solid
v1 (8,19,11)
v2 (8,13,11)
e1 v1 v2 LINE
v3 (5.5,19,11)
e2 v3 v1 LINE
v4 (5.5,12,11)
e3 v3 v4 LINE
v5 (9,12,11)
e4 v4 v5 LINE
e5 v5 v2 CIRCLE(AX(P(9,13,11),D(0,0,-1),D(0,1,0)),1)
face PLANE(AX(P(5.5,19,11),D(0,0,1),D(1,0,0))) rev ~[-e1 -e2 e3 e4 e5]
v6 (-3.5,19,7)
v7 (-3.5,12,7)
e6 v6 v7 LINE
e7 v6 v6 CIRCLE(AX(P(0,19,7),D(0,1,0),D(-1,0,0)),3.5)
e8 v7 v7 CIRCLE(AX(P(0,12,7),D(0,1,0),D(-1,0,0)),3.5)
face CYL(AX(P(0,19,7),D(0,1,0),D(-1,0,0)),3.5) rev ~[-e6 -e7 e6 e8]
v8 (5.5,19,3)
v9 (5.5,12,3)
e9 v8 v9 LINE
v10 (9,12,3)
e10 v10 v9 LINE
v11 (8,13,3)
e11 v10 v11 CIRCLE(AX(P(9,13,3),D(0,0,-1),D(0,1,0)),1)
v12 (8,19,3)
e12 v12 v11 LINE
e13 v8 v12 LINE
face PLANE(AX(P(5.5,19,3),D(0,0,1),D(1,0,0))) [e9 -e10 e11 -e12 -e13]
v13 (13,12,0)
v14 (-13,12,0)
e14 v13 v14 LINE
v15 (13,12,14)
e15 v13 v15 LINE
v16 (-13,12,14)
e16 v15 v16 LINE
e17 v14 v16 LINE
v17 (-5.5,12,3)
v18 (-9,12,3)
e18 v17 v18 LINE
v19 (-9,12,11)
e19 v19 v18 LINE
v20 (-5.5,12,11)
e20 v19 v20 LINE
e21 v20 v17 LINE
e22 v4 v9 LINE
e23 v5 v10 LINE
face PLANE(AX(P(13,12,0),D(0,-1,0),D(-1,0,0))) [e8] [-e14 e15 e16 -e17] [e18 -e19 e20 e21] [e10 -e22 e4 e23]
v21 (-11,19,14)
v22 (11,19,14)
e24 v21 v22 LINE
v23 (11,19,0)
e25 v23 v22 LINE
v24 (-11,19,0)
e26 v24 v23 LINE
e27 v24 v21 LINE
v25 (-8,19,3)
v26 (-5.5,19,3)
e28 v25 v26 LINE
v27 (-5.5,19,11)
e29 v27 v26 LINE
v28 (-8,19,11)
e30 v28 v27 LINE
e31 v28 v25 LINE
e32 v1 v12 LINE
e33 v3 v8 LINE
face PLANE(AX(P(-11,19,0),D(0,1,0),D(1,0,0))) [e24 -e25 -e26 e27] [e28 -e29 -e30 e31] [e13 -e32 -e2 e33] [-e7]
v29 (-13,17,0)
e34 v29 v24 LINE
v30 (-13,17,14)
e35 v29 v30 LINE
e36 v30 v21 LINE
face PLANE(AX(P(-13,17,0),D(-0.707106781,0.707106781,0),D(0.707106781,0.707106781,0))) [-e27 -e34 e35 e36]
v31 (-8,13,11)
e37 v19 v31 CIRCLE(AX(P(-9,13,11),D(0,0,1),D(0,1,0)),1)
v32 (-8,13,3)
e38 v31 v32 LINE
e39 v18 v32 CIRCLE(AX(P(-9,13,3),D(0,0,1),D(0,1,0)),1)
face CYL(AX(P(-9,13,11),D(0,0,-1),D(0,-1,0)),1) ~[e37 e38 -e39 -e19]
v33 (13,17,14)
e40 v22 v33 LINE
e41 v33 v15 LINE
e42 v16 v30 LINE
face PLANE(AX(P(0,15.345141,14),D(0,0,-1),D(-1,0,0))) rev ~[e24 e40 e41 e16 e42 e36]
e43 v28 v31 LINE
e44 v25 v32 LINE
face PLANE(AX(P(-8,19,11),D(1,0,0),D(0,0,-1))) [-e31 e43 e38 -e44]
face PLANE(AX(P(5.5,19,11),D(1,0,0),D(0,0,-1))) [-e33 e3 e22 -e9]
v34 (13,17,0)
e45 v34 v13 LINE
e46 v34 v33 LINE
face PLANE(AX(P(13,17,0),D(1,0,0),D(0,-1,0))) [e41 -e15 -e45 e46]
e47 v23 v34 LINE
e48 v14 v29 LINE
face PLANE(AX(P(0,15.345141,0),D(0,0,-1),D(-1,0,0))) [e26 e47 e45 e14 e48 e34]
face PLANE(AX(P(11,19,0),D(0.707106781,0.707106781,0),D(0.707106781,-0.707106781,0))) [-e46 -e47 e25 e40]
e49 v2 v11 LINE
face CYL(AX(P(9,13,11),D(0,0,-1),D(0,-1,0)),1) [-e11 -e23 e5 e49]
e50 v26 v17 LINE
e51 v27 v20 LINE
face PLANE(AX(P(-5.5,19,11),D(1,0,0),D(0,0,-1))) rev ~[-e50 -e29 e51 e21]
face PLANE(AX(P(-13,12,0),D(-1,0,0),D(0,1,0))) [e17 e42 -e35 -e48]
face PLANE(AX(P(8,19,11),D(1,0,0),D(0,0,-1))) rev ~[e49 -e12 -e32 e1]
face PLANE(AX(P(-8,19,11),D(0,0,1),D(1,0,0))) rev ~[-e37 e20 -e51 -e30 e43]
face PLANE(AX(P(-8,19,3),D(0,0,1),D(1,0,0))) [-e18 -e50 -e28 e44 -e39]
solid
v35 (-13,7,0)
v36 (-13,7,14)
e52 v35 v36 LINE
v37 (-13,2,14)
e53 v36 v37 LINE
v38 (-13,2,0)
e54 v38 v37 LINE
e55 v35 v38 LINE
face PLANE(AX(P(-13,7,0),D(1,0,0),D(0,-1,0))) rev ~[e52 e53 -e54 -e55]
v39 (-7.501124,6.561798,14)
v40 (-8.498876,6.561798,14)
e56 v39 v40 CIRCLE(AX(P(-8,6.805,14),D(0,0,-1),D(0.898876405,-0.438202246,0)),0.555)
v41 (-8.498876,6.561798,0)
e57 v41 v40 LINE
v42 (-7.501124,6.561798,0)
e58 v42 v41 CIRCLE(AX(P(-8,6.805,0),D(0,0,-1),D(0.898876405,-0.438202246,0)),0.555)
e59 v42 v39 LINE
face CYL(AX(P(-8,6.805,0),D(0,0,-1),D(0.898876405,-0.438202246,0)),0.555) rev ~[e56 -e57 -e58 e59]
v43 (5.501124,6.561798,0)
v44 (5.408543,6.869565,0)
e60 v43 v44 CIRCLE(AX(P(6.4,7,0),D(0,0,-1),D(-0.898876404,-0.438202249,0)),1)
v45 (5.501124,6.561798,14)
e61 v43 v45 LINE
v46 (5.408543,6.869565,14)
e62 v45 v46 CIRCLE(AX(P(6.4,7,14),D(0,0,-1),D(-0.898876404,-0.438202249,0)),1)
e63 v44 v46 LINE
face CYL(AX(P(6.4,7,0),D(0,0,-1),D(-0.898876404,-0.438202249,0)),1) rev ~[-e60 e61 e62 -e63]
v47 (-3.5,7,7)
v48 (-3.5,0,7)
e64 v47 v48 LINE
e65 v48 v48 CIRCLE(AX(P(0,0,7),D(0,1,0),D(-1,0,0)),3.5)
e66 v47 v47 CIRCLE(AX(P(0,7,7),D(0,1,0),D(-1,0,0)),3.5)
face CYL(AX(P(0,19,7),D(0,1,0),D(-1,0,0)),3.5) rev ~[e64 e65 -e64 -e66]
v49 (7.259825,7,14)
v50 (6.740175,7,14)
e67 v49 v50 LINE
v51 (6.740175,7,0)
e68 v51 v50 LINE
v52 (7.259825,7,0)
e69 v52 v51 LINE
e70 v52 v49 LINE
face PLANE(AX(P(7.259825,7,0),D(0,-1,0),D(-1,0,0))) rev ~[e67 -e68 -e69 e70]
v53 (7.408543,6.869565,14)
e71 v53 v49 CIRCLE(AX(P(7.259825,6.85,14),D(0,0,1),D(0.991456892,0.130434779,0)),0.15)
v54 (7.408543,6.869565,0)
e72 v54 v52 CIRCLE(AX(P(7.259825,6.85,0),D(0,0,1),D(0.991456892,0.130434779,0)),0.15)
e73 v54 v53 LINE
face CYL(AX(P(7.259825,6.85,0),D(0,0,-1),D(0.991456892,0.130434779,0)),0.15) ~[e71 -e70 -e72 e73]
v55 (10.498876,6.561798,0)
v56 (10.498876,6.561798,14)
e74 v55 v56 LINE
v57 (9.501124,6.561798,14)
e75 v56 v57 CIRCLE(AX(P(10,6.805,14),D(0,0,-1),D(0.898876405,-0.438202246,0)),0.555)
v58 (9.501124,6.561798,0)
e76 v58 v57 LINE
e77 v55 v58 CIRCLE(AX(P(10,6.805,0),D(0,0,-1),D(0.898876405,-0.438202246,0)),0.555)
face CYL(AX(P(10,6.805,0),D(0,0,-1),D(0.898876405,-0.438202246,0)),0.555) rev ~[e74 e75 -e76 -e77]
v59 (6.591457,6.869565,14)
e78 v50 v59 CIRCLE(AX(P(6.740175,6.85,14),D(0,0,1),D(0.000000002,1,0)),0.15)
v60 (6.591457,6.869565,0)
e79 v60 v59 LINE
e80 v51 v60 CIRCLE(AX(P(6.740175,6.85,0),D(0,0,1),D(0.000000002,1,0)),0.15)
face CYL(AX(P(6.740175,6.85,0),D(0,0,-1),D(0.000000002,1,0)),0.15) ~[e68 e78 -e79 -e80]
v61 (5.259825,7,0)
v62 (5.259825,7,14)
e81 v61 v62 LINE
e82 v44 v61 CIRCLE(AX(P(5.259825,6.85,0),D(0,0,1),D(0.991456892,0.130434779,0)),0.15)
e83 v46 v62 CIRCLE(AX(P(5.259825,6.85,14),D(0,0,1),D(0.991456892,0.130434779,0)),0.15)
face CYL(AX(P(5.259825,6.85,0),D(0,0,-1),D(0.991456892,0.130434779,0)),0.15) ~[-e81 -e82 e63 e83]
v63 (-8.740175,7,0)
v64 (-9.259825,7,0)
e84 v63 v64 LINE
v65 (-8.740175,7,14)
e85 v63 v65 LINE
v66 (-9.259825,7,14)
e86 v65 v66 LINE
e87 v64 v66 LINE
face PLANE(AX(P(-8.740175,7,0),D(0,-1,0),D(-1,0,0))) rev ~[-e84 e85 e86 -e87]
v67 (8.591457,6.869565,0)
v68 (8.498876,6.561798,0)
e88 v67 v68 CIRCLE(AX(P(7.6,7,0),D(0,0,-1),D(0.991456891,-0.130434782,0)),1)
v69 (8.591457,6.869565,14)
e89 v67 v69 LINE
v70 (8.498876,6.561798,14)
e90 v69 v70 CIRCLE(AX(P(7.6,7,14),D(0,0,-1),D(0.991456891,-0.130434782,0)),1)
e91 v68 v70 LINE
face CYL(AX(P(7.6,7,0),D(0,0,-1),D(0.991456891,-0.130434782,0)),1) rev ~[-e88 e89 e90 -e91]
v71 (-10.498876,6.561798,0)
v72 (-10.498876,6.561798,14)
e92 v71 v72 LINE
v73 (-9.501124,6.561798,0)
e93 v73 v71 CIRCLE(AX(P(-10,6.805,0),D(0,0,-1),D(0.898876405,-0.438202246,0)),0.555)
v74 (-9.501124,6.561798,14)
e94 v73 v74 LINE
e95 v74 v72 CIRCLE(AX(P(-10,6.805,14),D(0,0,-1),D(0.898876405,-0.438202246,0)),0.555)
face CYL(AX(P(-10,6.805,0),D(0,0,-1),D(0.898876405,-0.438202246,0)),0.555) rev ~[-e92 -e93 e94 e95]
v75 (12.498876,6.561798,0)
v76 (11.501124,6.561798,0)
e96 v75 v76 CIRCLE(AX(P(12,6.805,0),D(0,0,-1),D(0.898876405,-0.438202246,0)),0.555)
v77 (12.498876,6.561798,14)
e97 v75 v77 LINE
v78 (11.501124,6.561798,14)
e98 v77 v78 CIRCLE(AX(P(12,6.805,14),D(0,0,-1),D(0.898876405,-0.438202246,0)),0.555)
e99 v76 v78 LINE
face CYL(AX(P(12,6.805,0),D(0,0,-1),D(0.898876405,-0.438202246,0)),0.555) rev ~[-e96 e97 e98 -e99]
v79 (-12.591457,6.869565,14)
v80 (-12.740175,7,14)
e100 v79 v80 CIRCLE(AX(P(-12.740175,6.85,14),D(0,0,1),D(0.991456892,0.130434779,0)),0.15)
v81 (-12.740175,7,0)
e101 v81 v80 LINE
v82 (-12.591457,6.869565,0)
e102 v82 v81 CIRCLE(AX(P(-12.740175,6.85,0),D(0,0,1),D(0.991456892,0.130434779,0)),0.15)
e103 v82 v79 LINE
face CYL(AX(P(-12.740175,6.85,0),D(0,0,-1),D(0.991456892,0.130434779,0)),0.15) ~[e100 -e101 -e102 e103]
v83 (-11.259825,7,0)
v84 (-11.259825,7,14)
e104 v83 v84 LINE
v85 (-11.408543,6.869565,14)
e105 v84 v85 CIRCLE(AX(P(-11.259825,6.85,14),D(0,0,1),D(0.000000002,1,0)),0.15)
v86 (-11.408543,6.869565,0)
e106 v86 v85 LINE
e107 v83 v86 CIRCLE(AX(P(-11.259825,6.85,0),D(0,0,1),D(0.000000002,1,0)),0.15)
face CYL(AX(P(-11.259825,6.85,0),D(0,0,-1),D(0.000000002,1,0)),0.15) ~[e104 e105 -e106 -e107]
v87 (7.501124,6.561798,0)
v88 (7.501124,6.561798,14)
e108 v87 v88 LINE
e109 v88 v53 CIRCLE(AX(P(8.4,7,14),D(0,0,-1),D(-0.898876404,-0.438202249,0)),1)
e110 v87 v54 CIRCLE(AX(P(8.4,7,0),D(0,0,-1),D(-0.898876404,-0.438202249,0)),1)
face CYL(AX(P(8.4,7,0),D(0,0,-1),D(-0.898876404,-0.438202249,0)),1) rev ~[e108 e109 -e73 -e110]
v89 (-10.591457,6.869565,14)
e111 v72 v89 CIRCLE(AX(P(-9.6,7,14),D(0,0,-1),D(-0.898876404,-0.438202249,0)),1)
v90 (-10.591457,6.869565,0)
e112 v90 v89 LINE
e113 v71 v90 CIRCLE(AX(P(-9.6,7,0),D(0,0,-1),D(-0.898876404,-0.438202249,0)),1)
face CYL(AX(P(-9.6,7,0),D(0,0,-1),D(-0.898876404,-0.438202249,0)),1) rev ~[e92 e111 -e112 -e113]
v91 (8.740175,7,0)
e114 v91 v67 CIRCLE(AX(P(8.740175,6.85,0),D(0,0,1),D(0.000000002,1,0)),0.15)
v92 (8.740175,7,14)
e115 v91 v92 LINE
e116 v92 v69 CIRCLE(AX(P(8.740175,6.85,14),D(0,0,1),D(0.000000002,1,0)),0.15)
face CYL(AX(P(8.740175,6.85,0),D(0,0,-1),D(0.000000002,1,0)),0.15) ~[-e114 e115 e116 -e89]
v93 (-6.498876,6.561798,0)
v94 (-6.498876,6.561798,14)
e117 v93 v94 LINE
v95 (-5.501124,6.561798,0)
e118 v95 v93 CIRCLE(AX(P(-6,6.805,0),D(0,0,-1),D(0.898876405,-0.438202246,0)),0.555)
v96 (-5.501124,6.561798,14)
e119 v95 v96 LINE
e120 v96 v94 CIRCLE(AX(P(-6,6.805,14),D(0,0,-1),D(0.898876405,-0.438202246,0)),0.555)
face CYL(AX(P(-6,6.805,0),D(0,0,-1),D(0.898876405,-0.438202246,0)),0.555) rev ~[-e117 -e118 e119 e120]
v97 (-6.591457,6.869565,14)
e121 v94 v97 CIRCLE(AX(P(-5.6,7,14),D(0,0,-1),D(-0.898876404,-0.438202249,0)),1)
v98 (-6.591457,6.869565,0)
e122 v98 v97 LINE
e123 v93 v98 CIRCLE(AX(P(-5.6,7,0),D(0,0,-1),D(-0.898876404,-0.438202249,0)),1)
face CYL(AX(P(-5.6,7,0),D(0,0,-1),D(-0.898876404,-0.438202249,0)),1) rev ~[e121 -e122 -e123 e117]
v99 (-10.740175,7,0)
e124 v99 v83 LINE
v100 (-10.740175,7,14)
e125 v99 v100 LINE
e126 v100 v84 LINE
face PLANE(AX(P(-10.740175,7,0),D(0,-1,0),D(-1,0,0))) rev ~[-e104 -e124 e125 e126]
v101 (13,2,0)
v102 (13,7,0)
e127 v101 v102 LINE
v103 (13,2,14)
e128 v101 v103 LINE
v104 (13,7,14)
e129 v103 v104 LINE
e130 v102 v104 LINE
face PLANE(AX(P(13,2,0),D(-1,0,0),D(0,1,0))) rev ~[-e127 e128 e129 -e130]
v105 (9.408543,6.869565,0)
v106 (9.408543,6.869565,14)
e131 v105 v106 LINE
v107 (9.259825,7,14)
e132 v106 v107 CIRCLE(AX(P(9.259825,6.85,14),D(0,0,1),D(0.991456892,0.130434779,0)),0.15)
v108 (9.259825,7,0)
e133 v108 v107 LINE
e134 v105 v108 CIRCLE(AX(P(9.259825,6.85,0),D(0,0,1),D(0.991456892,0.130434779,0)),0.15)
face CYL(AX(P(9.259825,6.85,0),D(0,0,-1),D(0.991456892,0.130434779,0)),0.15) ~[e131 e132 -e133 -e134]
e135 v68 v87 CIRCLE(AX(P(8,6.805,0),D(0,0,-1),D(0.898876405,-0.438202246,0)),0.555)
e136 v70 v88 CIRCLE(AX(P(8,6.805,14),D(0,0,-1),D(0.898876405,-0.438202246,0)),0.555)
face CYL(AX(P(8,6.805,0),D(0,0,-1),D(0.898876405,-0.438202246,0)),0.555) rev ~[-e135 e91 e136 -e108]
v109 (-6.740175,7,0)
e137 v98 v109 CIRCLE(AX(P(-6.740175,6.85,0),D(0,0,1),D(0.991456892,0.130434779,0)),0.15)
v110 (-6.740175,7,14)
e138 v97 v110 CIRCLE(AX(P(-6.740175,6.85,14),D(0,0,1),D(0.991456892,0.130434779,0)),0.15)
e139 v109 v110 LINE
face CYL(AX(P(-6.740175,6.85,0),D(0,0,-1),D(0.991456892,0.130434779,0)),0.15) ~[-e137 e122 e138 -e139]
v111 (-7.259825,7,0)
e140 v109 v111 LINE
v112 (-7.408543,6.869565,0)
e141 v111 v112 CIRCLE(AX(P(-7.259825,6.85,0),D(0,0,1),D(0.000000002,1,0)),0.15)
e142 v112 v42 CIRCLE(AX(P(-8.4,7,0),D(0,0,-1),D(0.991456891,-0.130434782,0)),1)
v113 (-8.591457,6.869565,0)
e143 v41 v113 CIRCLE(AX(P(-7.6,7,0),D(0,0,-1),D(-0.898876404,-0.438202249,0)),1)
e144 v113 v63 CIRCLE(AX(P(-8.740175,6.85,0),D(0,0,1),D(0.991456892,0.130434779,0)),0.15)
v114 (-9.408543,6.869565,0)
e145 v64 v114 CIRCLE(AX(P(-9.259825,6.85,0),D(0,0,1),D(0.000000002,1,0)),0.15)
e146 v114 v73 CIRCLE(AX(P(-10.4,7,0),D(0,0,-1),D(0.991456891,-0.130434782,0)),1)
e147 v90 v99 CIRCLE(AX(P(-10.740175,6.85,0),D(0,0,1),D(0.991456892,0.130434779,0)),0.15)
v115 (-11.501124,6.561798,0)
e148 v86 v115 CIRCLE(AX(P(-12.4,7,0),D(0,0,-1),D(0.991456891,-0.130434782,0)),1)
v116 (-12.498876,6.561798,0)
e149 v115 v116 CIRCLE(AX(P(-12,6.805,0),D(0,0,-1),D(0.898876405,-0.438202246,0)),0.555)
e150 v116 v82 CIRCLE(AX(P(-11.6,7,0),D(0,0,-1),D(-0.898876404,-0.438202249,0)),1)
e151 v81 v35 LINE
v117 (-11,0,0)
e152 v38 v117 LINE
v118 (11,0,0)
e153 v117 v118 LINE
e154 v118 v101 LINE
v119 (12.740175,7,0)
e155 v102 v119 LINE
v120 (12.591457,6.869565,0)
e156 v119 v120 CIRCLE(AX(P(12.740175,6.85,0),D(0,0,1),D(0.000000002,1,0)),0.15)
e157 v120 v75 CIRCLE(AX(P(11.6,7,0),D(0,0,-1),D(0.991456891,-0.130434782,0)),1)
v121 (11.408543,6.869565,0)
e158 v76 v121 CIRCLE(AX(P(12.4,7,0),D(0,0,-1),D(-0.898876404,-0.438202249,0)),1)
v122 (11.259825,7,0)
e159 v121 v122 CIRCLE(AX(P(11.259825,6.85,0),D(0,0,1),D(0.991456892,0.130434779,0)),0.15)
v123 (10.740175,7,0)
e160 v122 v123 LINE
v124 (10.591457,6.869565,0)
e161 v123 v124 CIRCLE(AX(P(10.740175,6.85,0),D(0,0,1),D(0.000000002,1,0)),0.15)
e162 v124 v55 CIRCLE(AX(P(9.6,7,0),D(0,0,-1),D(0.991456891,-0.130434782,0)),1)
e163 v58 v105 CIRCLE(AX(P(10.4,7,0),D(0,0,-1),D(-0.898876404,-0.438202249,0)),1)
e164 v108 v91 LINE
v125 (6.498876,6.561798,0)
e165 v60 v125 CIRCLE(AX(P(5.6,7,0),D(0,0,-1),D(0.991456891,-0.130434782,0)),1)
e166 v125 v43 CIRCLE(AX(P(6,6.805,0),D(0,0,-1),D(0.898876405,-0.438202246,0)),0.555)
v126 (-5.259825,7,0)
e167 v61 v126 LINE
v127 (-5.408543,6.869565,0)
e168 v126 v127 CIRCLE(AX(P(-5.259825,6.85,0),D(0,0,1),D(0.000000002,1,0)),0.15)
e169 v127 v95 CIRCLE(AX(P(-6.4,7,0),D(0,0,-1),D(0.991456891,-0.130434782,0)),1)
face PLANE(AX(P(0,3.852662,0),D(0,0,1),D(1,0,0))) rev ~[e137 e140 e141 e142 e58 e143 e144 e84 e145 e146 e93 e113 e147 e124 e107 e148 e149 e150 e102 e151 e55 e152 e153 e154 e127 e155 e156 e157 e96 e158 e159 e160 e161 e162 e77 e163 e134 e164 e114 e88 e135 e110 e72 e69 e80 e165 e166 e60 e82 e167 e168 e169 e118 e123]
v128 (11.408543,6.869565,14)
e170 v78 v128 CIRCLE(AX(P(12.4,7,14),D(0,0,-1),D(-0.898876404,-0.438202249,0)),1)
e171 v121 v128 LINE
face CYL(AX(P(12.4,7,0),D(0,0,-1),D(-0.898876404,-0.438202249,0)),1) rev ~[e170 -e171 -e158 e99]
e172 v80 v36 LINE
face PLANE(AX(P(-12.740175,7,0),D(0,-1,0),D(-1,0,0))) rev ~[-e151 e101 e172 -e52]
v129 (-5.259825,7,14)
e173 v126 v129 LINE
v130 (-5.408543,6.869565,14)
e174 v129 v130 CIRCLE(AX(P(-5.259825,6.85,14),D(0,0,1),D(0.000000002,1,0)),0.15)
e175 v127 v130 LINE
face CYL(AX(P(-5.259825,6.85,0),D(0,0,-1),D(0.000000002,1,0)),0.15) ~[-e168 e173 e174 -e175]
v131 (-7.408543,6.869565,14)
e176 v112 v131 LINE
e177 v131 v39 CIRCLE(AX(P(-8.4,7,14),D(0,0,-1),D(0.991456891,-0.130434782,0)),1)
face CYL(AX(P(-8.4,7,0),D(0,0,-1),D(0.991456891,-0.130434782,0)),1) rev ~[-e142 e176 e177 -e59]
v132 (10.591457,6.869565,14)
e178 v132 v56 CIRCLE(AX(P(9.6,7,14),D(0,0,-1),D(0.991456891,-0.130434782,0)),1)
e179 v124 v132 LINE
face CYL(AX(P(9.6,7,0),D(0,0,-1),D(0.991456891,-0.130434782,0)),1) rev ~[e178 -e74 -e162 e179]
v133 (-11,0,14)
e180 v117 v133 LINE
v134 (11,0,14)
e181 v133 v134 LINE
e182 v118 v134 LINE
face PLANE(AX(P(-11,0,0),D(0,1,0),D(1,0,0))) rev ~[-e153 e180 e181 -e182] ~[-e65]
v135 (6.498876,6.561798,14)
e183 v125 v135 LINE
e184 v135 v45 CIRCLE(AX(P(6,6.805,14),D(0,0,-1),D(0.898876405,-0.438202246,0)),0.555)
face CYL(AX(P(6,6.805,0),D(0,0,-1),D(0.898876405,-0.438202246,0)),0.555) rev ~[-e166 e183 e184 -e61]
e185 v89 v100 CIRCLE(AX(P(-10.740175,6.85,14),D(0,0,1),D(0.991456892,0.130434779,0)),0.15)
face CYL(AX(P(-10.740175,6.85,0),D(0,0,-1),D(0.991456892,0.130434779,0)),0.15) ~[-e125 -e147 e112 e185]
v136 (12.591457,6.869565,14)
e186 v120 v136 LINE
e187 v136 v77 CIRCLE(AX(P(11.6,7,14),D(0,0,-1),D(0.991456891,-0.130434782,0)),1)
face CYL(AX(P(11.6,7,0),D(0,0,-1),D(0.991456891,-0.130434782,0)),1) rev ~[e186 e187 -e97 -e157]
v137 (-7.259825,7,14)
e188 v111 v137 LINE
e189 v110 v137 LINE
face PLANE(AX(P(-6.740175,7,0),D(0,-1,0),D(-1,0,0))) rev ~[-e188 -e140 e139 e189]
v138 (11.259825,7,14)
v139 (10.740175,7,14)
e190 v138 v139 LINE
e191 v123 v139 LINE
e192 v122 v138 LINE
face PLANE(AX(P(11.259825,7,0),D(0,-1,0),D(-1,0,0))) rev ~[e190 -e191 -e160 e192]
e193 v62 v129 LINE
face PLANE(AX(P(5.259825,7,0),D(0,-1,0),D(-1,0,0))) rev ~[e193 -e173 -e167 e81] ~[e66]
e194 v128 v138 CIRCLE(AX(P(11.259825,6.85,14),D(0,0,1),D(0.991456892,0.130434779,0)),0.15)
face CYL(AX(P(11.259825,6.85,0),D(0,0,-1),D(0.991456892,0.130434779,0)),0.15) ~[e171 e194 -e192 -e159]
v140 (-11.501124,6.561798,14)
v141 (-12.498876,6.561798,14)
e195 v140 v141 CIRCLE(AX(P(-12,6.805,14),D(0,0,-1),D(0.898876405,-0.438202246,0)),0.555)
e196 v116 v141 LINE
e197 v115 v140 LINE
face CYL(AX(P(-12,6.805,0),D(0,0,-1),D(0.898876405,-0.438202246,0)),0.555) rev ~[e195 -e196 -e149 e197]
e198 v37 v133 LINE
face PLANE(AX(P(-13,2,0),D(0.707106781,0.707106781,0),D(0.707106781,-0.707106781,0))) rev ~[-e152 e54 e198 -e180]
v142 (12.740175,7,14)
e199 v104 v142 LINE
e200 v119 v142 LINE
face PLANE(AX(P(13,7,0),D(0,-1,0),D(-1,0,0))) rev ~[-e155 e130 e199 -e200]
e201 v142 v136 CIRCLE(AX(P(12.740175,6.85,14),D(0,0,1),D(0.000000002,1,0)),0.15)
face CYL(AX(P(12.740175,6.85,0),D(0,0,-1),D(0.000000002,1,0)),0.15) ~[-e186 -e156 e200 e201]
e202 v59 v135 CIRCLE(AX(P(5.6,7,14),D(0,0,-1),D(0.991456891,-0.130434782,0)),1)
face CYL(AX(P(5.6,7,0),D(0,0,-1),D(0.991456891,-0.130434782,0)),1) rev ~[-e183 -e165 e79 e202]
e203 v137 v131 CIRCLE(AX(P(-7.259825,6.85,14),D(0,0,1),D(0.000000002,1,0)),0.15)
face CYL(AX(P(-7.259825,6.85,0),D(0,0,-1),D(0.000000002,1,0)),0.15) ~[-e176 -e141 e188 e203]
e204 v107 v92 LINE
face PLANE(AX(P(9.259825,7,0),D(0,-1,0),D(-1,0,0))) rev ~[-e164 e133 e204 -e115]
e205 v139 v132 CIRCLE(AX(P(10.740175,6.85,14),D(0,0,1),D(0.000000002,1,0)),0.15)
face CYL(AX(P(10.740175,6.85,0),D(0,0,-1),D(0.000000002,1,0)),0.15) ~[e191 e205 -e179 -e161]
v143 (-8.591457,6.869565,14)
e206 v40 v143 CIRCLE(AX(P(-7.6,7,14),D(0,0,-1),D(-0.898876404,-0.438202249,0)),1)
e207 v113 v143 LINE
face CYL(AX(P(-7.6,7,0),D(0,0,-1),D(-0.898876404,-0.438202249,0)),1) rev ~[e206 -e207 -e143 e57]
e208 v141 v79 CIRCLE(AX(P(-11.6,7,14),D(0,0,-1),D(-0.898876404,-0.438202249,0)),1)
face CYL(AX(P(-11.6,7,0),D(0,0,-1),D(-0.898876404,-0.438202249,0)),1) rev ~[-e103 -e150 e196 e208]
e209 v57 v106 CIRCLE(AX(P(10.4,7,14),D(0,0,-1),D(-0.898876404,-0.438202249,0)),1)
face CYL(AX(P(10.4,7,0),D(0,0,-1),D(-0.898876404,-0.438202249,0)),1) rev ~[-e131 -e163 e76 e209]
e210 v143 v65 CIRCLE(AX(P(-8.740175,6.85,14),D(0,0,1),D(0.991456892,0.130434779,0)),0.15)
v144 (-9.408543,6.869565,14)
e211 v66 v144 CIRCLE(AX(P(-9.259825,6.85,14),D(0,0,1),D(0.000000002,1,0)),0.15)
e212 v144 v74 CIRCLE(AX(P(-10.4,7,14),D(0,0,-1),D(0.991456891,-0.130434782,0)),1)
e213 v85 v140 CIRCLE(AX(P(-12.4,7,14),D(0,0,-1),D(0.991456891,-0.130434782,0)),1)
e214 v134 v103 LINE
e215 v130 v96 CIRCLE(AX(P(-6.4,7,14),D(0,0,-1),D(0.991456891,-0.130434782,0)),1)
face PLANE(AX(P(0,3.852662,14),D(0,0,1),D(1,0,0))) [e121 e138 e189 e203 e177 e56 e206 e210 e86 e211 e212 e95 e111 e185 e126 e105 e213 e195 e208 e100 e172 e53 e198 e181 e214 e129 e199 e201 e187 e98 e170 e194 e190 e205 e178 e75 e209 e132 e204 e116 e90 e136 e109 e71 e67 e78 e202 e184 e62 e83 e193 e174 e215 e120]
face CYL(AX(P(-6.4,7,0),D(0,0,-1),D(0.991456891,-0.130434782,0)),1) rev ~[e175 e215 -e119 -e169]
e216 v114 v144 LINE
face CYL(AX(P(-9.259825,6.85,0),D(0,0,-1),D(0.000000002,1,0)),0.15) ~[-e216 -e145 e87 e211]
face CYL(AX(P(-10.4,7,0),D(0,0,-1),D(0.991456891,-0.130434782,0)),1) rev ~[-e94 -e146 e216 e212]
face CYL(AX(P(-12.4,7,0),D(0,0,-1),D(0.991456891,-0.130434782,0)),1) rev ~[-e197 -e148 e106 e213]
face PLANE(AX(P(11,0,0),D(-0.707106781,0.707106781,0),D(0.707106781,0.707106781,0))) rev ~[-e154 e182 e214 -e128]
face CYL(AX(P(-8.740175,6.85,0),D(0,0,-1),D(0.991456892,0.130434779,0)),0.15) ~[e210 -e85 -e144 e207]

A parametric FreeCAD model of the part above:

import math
import FreeCAD as App
import Part
import Sketcher
Q = App.Units.Quantity


def edges_at(feature, points):
    """Names of the edges that pass closest to the given points."""
    edges = feature.Shape.Edges
    near = lambda p: min(range(len(edges)), key=lambda i: edges[i].distToShape(Part.Vertex(*p))[0])
    return sorted({f"Edge{near(p) + 1}" for p in points})

doc = App.newDocument("Part")
body = doc.addObject("PartDesign::Body", "Body")

sketch1 = doc.addObject("Sketcher::SketchObject", "Sketch")
body.addObject(sketch1)
sketch1.AttachmentSupport = (doc.XY_Plane, [""])
sketch1.MapMode = "FlatFace"
sketch1.addGeometry(Part.LineSegment(App.Vector(7.259825, 7, 0), App.Vector(6.740175, 7, 0)), False)
sketch1.addGeometry(Part.ArcOfCircle(Part.Circle(App.Vector(6.740175, 6.85, 0), App.Vector(0, 0, 1), 0.15), math.radians(90), math.radians(172.505283)), False)
sketch1.addGeometry(Part.ArcOfCircle(Part.Circle(App.Vector(5.6, 7, 0), App.Vector(0, 0, 1), 1), math.radians(-25.989234), math.radians(-7.494717)), False)
sketch1.addGeometry(Part.ArcOfCircle(Part.Circle(App.Vector(6, 6.805, 0), App.Vector(0, 0, 1), 0.555), math.radians(-154.010767), math.radians(-25.989233)), False)
sketch1.addGeometry(Part.ArcOfCircle(Part.Circle(App.Vector(6.4, 7, 0), App.Vector(0, 0, 1), 1), math.radians(-172.505283), math.radians(-154.010766)), False)
sketch1.addGeometry(Part.ArcOfCircle(Part.Circle(App.Vector(5.259825, 6.85, 0), App.Vector(0, 0, 1), 0.15), math.radians(7.494717), math.radians(90)), False)
sketch1.addGeometry(Part.LineSegment(App.Vector(5.259825, 7, 0), App.Vector(-5.259825, 7, 0)), False)
sketch1.addGeometry(Part.ArcOfCircle(Part.Circle(App.Vector(-5.259825, 6.85, 0), App.Vector(0, 0, 1), 0.15), math.radians(90), math.radians(172.505283)), False)
sketch1.addGeometry(Part.ArcOfCircle(Part.Circle(App.Vector(-6.4, 7, 0), App.Vector(0, 0, 1), 1), math.radians(-25.989234), math.radians(-7.494717)), False)
sketch1.addGeometry(Part.ArcOfCircle(Part.Circle(App.Vector(-6, 6.805, 0), App.Vector(0, 0, 1), 0.555), math.radians(-154.010767), math.radians(-25.989233)), False)
sketch1.addGeometry(Part.ArcOfCircle(Part.Circle(App.Vector(-5.6, 7, 0), App.Vector(0, 0, 1), 1), math.radians(-172.505283), math.radians(-154.010766)), False)
sketch1.addGeometry(Part.ArcOfCircle(Part.Circle(App.Vector(-6.740175, 6.85, 0), App.Vector(0, 0, 1), 0.15), math.radians(7.494717), math.radians(90)), False)
sketch1.addGeometry(Part.LineSegment(App.Vector(-6.740175, 7, 0), App.Vector(-7.259825, 7, 0)), False)
sketch1.addGeometry(Part.ArcOfCircle(Part.Circle(App.Vector(-7.259825, 6.85, 0), App.Vector(0, 0, 1), 0.15), math.radians(90), math.radians(172.505283)), False)
sketch1.addGeometry(Part.ArcOfCircle(Part.Circle(App.Vector(-8.4, 7, 0), App.Vector(0, 0, 1), 1), math.radians(-25.989234), math.radians(-7.494717)), False)
sketch1.addGeometry(Part.ArcOfCircle(Part.Circle(App.Vector(-8, 6.805, 0), App.Vector(0, 0, 1), 0.555), math.radians(-154.010767), math.radians(-25.989233)), False)
sketch1.addGeometry(Part.ArcOfCircle(Part.Circle(App.Vector(-7.6, 7, 0), App.Vector(0, 0, 1), 1), math.radians(-172.505283), math.radians(-154.010766)), False)
sketch1.addGeometry(Part.ArcOfCircle(Part.Circle(App.Vector(-8.740175, 6.85, 0), App.Vector(0, 0, 1), 0.15), math.radians(7.494717), math.radians(90)), False)
sketch1.addGeometry(Part.LineSegment(App.Vector(-8.740175, 7, 0), App.Vector(-9.259825, 7, 0)), False)
sketch1.addGeometry(Part.ArcOfCircle(Part.Circle(App.Vector(-9.259825, 6.85, 0), App.Vector(0, 0, 1), 0.15), math.radians(90), math.radians(172.505283)), False)
sketch1.addGeometry(Part.ArcOfCircle(Part.Circle(App.Vector(-10.4, 7, 0), App.Vector(0, 0, 1), 1), math.radians(-25.989234), math.radians(-7.494717)), False)
sketch1.addGeometry(Part.ArcOfCircle(Part.Circle(App.Vector(-10, 6.805, 0), App.Vector(0, 0, 1), 0.555), math.radians(-154.010767), math.radians(-25.989233)), False)
sketch1.addGeometry(Part.ArcOfCircle(Part.Circle(App.Vector(-9.6, 7, 0), App.Vector(0, 0, 1), 1), math.radians(-172.505283), math.radians(-154.010766)), False)
sketch1.addGeometry(Part.ArcOfCircle(Part.Circle(App.Vector(-10.740175, 6.85, 0), App.Vector(0, 0, 1), 0.15), math.radians(7.494717), math.radians(90)), False)
sketch1.addGeometry(Part.LineSegment(App.Vector(-10.740175, 7, 0), App.Vector(-11.259825, 7, 0)), False)
sketch1.addGeometry(Part.ArcOfCircle(Part.Circle(App.Vector(-11.259825, 6.85, 0), App.Vector(0, 0, 1), 0.15), math.radians(90), math.radians(172.505283)), False)
sketch1.addGeometry(Part.ArcOfCircle(Part.Circle(App.Vector(-12.4, 7, 0), App.Vector(0, 0, 1), 1), math.radians(-25.989234), math.radians(-7.494717)), False)
sketch1.addGeometry(Part.ArcOfCircle(Part.Circle(App.Vector(-12, 6.805, 0), App.Vector(0, 0, 1), 0.555), math.radians(-154.010767), math.radians(-25.989233)), False)
sketch1.addGeometry(Part.ArcOfCircle(Part.Circle(App.Vector(-11.6, 7, 0), App.Vector(0, 0, 1), 1), math.radians(-172.505283), math.radians(-154.010766)), False)
sketch1.addGeometry(Part.ArcOfCircle(Part.Circle(App.Vector(-12.740175, 6.85, 0), App.Vector(0, 0, 1), 0.15), math.radians(7.494717), math.radians(90)), False)
sketch1.addGeometry(Part.LineSegment(App.Vector(-12.740175, 7, 0), App.Vector(-13, 7, 0)), False)
sketch1.addGeometry(Part.LineSegment(App.Vector(-13, 7, 0), App.Vector(-13, 2, 0)), False)
sketch1.addGeometry(Part.LineSegment(App.Vector(-13, 2, 0), App.Vector(-11, 0, 0)), False)
sketch1.addGeometry(Part.LineSegment(App.Vector(-11, 0, 0), App.Vector(11, 0, 0)), False)
sketch1.addGeometry(Part.LineSegment(App.Vector(11, 0, 0), App.Vector(13, 2, 0)), False)
sketch1.addGeometry(Part.LineSegment(App.Vector(13, 2, 0), App.Vector(13, 7, 0)), False)
sketch1.addGeometry(Part.LineSegment(App.Vector(13, 7, 0), App.Vector(12.740175, 7, 0)), False)
sketch1.addGeometry(Part.ArcOfCircle(Part.Circle(App.Vector(12.740175, 6.85, 0), App.Vector(0, 0, 1), 0.15), math.radians(90), math.radians(172.505283)), False)
sketch1.addGeometry(Part.ArcOfCircle(Part.Circle(App.Vector(11.6, 7, 0), App.Vector(0, 0, 1), 1), math.radians(-25.989234), math.radians(-7.494717)), False)
sketch1.addGeometry(Part.ArcOfCircle(Part.Circle(App.Vector(12, 6.805, 0), App.Vector(0, 0, 1), 0.555), math.radians(-154.010767), math.radians(-25.989233)), False)
sketch1.addGeometry(Part.ArcOfCircle(Part.Circle(App.Vector(12.4, 7, 0), App.Vector(0, 0, 1), 1), math.radians(-172.505283), math.radians(-154.010766)), False)
sketch1.addGeometry(Part.ArcOfCircle(Part.Circle(App.Vector(11.259825, 6.85, 0), App.Vector(0, 0, 1), 0.15), math.radians(7.494717), math.radians(90)), False)
sketch1.addGeometry(Part.LineSegment(App.Vector(11.259825, 7, 0), App.Vector(10.740175, 7, 0)), False)
sketch1.addGeometry(Part.ArcOfCircle(Part.Circle(App.Vector(10.740175, 6.85, 0), App.Vector(0, 0, 1), 0.15), math.radians(90), math.radians(172.505283)), False)
sketch1.addGeometry(Part.ArcOfCircle(Part.Circle(App.Vector(9.6, 7, 0), App.Vector(0, 0, 1), 1), math.radians(-25.989234), math.radians(-7.494717)), False)
sketch1.addGeometry(Part.ArcOfCircle(Part.Circle(App.Vector(10, 6.805, 0), App.Vector(0, 0, 1), 0.555), math.radians(-154.010767), math.radians(-25.989233)), False)
sketch1.addGeometry(Part.ArcOfCircle(Part.Circle(App.Vector(10.4, 7, 0), App.Vector(0, 0, 1), 1), math.radians(-172.505283), math.radians(-154.010766)), False)
sketch1.addGeometry(Part.ArcOfCircle(Part.Circle(App.Vector(9.259825, 6.85, 0), App.Vector(0, 0, 1), 0.15), math.radians(7.494717), math.radians(90)), False)
sketch1.addGeometry(Part.LineSegment(App.Vector(9.259825, 7, 0), App.Vector(8.740175, 7, 0)), False)
sketch1.addGeometry(Part.ArcOfCircle(Part.Circle(App.Vector(8.740175, 6.85, 0), App.Vector(0, 0, 1), 0.15), math.radians(90), math.radians(172.505283)), False)
sketch1.addGeometry(Part.ArcOfCircle(Part.Circle(App.Vector(7.6, 7, 0), App.Vector(0, 0, 1), 1), math.radians(-25.989234), math.radians(-7.494717)), False)
sketch1.addGeometry(Part.ArcOfCircle(Part.Circle(App.Vector(8, 6.805, 0), App.Vector(0, 0, 1), 0.555), math.radians(-154.010767), math.radians(-25.989233)), False)
sketch1.addGeometry(Part.ArcOfCircle(Part.Circle(App.Vector(8.4, 7, 0), App.Vector(0, 0, 1), 1), math.radians(-172.505283), math.radians(-154.010766)), False)
sketch1.addGeometry(Part.ArcOfCircle(Part.Circle(App.Vector(7.259825, 6.85, 0), App.Vector(0, 0, 1), 0.15), math.radians(7.494717), math.radians(90)), False)
sketch1.addConstraint(Sketcher.Constraint("Tangent", 0, 2, 1, 1))
sketch1.addConstraint(Sketcher.Constraint("Tangent", 1, 2, 2, 2))
sketch1.addConstraint(Sketcher.Constraint("Tangent", 2, 1, 3, 2))
sketch1.addConstraint(Sketcher.Constraint("Tangent", 3, 1, 4, 2))
sketch1.addConstraint(Sketcher.Constraint("Tangent", 4, 1, 5, 1))
sketch1.addConstraint(Sketcher.Constraint("Tangent", 5, 2, 6, 1))
sketch1.addConstraint(Sketcher.Constraint("Tangent", 6, 2, 7, 1))
sketch1.addConstraint(Sketcher.Constraint("Tangent", 7, 2, 8, 2))
sketch1.addConstraint(Sketcher.Constraint("Tangent", 8, 1, 9, 2))
sketch1.addConstraint(Sketcher.Constraint("Tangent", 9, 1, 10, 2))
sketch1.addConstraint(Sketcher.Constraint("Tangent", 10, 1, 11, 1))
sketch1.addConstraint(Sketcher.Constraint("Tangent", 11, 2, 12, 1))
sketch1.addConstraint(Sketcher.Constraint("Tangent", 12, 2, 13, 1))
sketch1.addConstraint(Sketcher.Constraint("Tangent", 13, 2, 14, 2))
sketch1.addConstraint(Sketcher.Constraint("Tangent", 14, 1, 15, 2))
sketch1.addConstraint(Sketcher.Constraint("Tangent", 15, 1, 16, 2))
sketch1.addConstraint(Sketcher.Constraint("Tangent", 16, 1, 17, 1))
sketch1.addConstraint(Sketcher.Constraint("Tangent", 17, 2, 18, 1))
sketch1.addConstraint(Sketcher.Constraint("Tangent", 18, 2, 19, 1))
sketch1.addConstraint(Sketcher.Constraint("Tangent", 19, 2, 20, 2))
sketch1.addConstraint(Sketcher.Constraint("Tangent", 20, 1, 21, 2))
sketch1.addConstraint(Sketcher.Constraint("Tangent", 21, 1, 22, 2))
sketch1.addConstraint(Sketcher.Constraint("Tangent", 22, 1, 23, 1))
sketch1.addConstraint(Sketcher.Constraint("Tangent", 23, 2, 24, 1))
sketch1.addConstraint(Sketcher.Constraint("Tangent", 24, 2, 25, 1))
sketch1.addConstraint(Sketcher.Constraint("Tangent", 25, 2, 26, 2))
sketch1.addConstraint(Sketcher.Constraint("Tangent", 26, 1, 27, 2))
sketch1.addConstraint(Sketcher.Constraint("Tangent", 27, 1, 28, 2))
sketch1.addConstraint(Sketcher.Constraint("Tangent", 28, 1, 29, 1))
sketch1.addConstraint(Sketcher.Constraint("Tangent", 29, 2, 30, 1))
sketch1.addConstraint(Sketcher.Constraint("Coincident", 30, 2, 31, 1))
sketch1.addConstraint(Sketcher.Constraint("Coincident", 31, 2, 32, 1))
sketch1.addConstraint(Sketcher.Constraint("Coincident", 32, 2, 33, 1))
sketch1.addConstraint(Sketcher.Constraint("Coincident", 33, 2, 34, 1))
sketch1.addConstraint(Sketcher.Constraint("Coincident", 34, 2, 35, 1))
sketch1.addConstraint(Sketcher.Constraint("Coincident", 35, 2, 36, 1))
sketch1.addConstraint(Sketcher.Constraint("Tangent", 36, 2, 37, 1))
sketch1.addConstraint(Sketcher.Constraint("Tangent", 37, 2, 38, 2))
sketch1.addConstraint(Sketcher.Constraint("Tangent", 38, 1, 39, 2))
sketch1.addConstraint(Sketcher.Constraint("Tangent", 39, 1, 40, 2))
sketch1.addConstraint(Sketcher.Constraint("Tangent", 40, 1, 41, 1))
sketch1.addConstraint(Sketcher.Constraint("Tangent", 41, 2, 42, 1))
sketch1.addConstraint(Sketcher.Constraint("Tangent", 42, 2, 43, 1))
sketch1.addConstraint(Sketcher.Constraint("Tangent", 43, 2, 44, 2))
sketch1.addConstraint(Sketcher.Constraint("Tangent", 44, 1, 45, 2))
sketch1.addConstraint(Sketcher.Constraint("Tangent", 45, 1, 46, 2))
sketch1.addConstraint(Sketcher.Constraint("Tangent", 46, 1, 47, 1))
sketch1.addConstraint(Sketcher.Constraint("Tangent", 47, 2, 48, 1))
sketch1.addConstraint(Sketcher.Constraint("Tangent", 48, 2, 49, 1))
sketch1.addConstraint(Sketcher.Constraint("Tangent", 49, 2, 50, 2))
sketch1.addConstraint(Sketcher.Constraint("Tangent", 50, 1, 51, 2))
sketch1.addConstraint(Sketcher.Constraint("Tangent", 51, 1, 52, 2))
sketch1.addConstraint(Sketcher.Constraint("Tangent", 52, 1, 53, 1))
sketch1.addConstraint(Sketcher.Constraint("Tangent", 53, 2, 0, 1))
sketch1.addConstraint(Sketcher.Constraint("Horizontal", 0))
sketch1.addConstraint(Sketcher.Constraint("Horizontal", 6))
sketch1.addConstraint(Sketcher.Constraint("Horizontal", 12))
sketch1.addConstraint(Sketcher.Constraint("Horizontal", 18))
sketch1.addConstraint(Sketcher.Constraint("Horizontal", 24))
sketch1.addConstraint(Sketcher.Constraint("Horizontal", 30))
sketch1.addConstraint(Sketcher.Constraint("Vertical", 31))
sketch1.addConstraint(Sketcher.Constraint("Horizontal", 33))
sketch1.addConstraint(Sketcher.Constraint("Vertical", 35))
sketch1.addConstraint(Sketcher.Constraint("Horizontal", 36))
sketch1.addConstraint(Sketcher.Constraint("Horizontal", 42))
sketch1.addConstraint(Sketcher.Constraint("Horizontal", 48))
sketch1.addConstraint(Sketcher.Constraint("Equal", 2, 4))
sketch1.addConstraint(Sketcher.Constraint("Equal", 1, 5))
sketch1.addConstraint(Sketcher.Constraint("Equal", 5, 7))
sketch1.addConstraint(Sketcher.Constraint("Equal", 4, 8))
sketch1.addConstraint(Sketcher.Constraint("Equal", 3, 9))
sketch1.addConstraint(Sketcher.Constraint("Equal", 8, 10))
sketch1.addConstraint(Sketcher.Constraint("Equal", 7, 11))
sketch1.addConstraint(Sketcher.Constraint("Equal", 11, 13))
sketch1.addConstraint(Sketcher.Constraint("Equal", 10, 14))
sketch1.addConstraint(Sketcher.Constraint("Equal", 9, 15))
sketch1.addConstraint(Sketcher.Constraint("Equal", 14, 16))
sketch1.addConstraint(Sketcher.Constraint("Equal", 13, 17))
sketch1.addConstraint(Sketcher.Constraint("Equal", 17, 19))
sketch1.addConstraint(Sketcher.Constraint("Equal", 16, 20))
sketch1.addConstraint(Sketcher.Constraint("Equal", 15, 21))
sketch1.addConstraint(Sketcher.Constraint("Equal", 20, 22))
sketch1.addConstraint(Sketcher.Constraint("Equal", 19, 23))
sketch1.addConstraint(Sketcher.Constraint("Equal", 23, 25))
sketch1.addConstraint(Sketcher.Constraint("Equal", 22, 26))
sketch1.addConstraint(Sketcher.Constraint("Equal", 21, 27))
sketch1.addConstraint(Sketcher.Constraint("Equal", 26, 28))
sketch1.addConstraint(Sketcher.Constraint("Equal", 25, 29))
sketch1.addConstraint(Sketcher.Constraint("Equal", 29, 37))
sketch1.addConstraint(Sketcher.Constraint("Equal", 28, 38))
sketch1.addConstraint(Sketcher.Constraint("Equal", 27, 39))
sketch1.addConstraint(Sketcher.Constraint("Equal", 38, 40))
sketch1.addConstraint(Sketcher.Constraint("Equal", 37, 41))
sketch1.addConstraint(Sketcher.Constraint("Equal", 41, 43))
sketch1.addConstraint(Sketcher.Constraint("Equal", 40, 44))
sketch1.addConstraint(Sketcher.Constraint("Equal", 39, 45))
sketch1.addConstraint(Sketcher.Constraint("Equal", 44, 46))
sketch1.addConstraint(Sketcher.Constraint("Equal", 43, 47))
sketch1.addConstraint(Sketcher.Constraint("Equal", 47, 49))
sketch1.addConstraint(Sketcher.Constraint("Equal", 46, 50))
sketch1.addConstraint(Sketcher.Constraint("Equal", 45, 51))
sketch1.addConstraint(Sketcher.Constraint("Equal", 50, 52))
sketch1.addConstraint(Sketcher.Constraint("Equal", 49, 53))
sketch1.addConstraint(Sketcher.Constraint("Symmetric", 32, 2, 33, 2, -1, 1))
sketch1.addConstraint(Sketcher.Constraint("Symmetric", 4, 3, 8, 3, -2))
sketch1.addConstraint(Sketcher.Constraint("Symmetric", 2, 3, 10, 3, -2))
sketch1.addConstraint(Sketcher.Constraint("Symmetric", 29, 3, 37, 3, -2))
sketch1.addConstraint(Sketcher.Constraint("Symmetric", 27, 3, 39, 3, -2))
sketch1.addConstraint(Sketcher.Constraint("Symmetric", 25, 3, 41, 3, -2))
sketch1.addConstraint(Sketcher.Constraint("Symmetric", 22, 3, 44, 3, -2))
sketch1.addConstraint(Sketcher.Constraint("Symmetric", 20, 3, 46, 3, -2))
sketch1.addConstraint(Sketcher.Constraint("Symmetric", 17, 3, 49, 3, -2))
sketch1.addConstraint(Sketcher.Constraint("Symmetric", 15, 3, 51, 3, -2))
sketch1.addConstraint(Sketcher.Constraint("Symmetric", 13, 3, 53, 3, -2))
sketch1.addConstraint(Sketcher.Constraint("Symmetric", 31, 2, 34, 2, -2))
sketch1.addConstraint(Sketcher.Constraint("Perpendicular", 32, 34))
sketch1.addConstraint(Sketcher.Constraint("Horizontal", 2, 3, 4, 3))
sketch1.addConstraint(Sketcher.Constraint("Horizontal", 1, 3, 5, 3))
sketch1.addConstraint(Sketcher.Constraint("Horizontal", 10, 3, 14, 3))
sketch1.addConstraint(Sketcher.Constraint("Horizontal", 9, 3, 15, 3))
sketch1.addConstraint(Sketcher.Constraint("Horizontal", 14, 3, 16, 3))
sketch1.addConstraint(Sketcher.Constraint("Horizontal", 13, 3, 17, 3))
sketch1.addConstraint(Sketcher.Constraint("Horizontal", 16, 3, 20, 3))
sketch1.addConstraint(Sketcher.Constraint("Horizontal", 15, 3, 21, 3))
sketch1.addConstraint(Sketcher.Constraint("Horizontal", 20, 3, 22, 3))
sketch1.addConstraint(Sketcher.Constraint("Horizontal", 19, 3, 23, 3))
sketch1.addConstraint(Sketcher.Constraint("Horizontal", 22, 3, 26, 3))
sketch1.addConstraint(Sketcher.Constraint("Horizontal", 21, 3, 27, 3))
sketch1.addConstraint(Sketcher.Constraint("Horizontal", 26, 3, 28, 3))
sketch1.addConstraint(Sketcher.Constraint("Horizontal", 25, 3, 29, 3))
sketch1.addConstraint(Sketcher.Constraint("Horizontal", 52, 3, 0, 2))
sketch1.addConstraint(Sketcher.Constraint("Equal", 12, 18))
sketch1.addConstraint(Sketcher.Constraint("Equal", 18, 24))
sketch1.addConstraint(Sketcher.Constraint("Radius", 2, Q("1 mm")))
sketch1.addConstraint(Sketcher.Constraint("DistanceX", 33, 1, 33, 2, Q("22 mm")))
sketch1.addConstraint(Sketcher.Constraint("DistanceY", 31, 2, 31, 1, Q("5 mm")))
sketch1.addConstraint(Sketcher.Constraint("Radius", 1, Q("0.15 mm")))
sketch1.addConstraint(Sketcher.Constraint("DistanceY", -1, 1, 2, 3, Q("7 mm")))
sketch1.addConstraint(Sketcher.Constraint("DistanceX", -1, 1, 3, 3, Q("6 mm")))
sketch1.addConstraint(Sketcher.Constraint("DistanceX", 15, 3, -1, 1, Q("8 mm")))
sketch1.addConstraint(Sketcher.Constraint("Radius", 3, Q("0.555 mm")))
sketch1.addConstraint(Sketcher.Constraint("DistanceX", -1, 1, 2, 3, Q("5.6 mm")))
pad1 = doc.addObject("PartDesign::Pad", "Pad")
body.addObject(pad1)
pad1.Profile = sketch1
pad1.Length = 14
body2 = doc.addObject("PartDesign::Body", "Body001")

sketch2 = doc.addObject("Sketcher::SketchObject", "Sketch001")
body2.addObject(sketch2)
sketch2.AttachmentSupport = (doc.getObject("XY_Plane001"), [""])
sketch2.MapMode = "FlatFace"
sketch2.addGeometry(Part.LineSegment(App.Vector(13, 12, 0), App.Vector(13, 17, 0)), False)
sketch2.addGeometry(Part.LineSegment(App.Vector(13, 17, 0), App.Vector(11, 19, 0)), False)
sketch2.addGeometry(Part.LineSegment(App.Vector(11, 19, 0), App.Vector(-11, 19, 0)), False)
sketch2.addGeometry(Part.LineSegment(App.Vector(-11, 19, 0), App.Vector(-13, 17, 0)), False)
sketch2.addGeometry(Part.LineSegment(App.Vector(-13, 17, 0), App.Vector(-13, 12, 0)), False)
sketch2.addGeometry(Part.LineSegment(App.Vector(-13, 12, 0), App.Vector(13, 12, 0)), False)
sketch2.addConstraint(Sketcher.Constraint("Coincident", 0, 2, 1, 1))
sketch2.addConstraint(Sketcher.Constraint("Coincident", 1, 2, 2, 1))
sketch2.addConstraint(Sketcher.Constraint("Coincident", 2, 2, 3, 1))
sketch2.addConstraint(Sketcher.Constraint("Coincident", 3, 2, 4, 1))
sketch2.addConstraint(Sketcher.Constraint("Coincident", 4, 2, 5, 1))
sketch2.addConstraint(Sketcher.Constraint("Coincident", 5, 2, 0, 1))
sketch2.addConstraint(Sketcher.Constraint("Vertical", 0))
sketch2.addConstraint(Sketcher.Constraint("Horizontal", 2))
sketch2.addConstraint(Sketcher.Constraint("Vertical", 4))
sketch2.addConstraint(Sketcher.Constraint("Horizontal", 5))
sketch2.addConstraint(Sketcher.Constraint("Symmetric", 0, 2, 3, 2, -2))
sketch2.addConstraint(Sketcher.Constraint("Perpendicular", 1, 3))
sketch2.addConstraint(Sketcher.Constraint("Equal", 1, 3))
sketch2.addConstraint(Sketcher.Constraint("DistanceX", 2, 2, 2, 1, Q("22 mm")))
sketch2.addConstraint(Sketcher.Constraint("DistanceX", 5, 1, 5, 2, Q("26 mm")))
sketch2.addConstraint(Sketcher.Constraint("DistanceY", 0, 1, 0, 2, Q("5 mm")))
sketch2.addConstraint(Sketcher.Constraint("DistanceY", -1, 1, 0, 2, Q("17 mm")))
pad2 = doc.addObject("PartDesign::Pad", "Pad001")
body2.addObject(pad2)
pad2.Profile = sketch2
pad2.Length = 14
body3 = doc.addObject("PartDesign::Body", "Body002")

sketch3 = doc.addObject("Sketcher::SketchObject", "Sketch002")
body3.addObject(sketch3)
sketch3.AttachmentSupport = (doc.getObject("XZ_Plane002"), [""])
sketch3.MapMode = "FlatFace"
sketch3.AttachmentOffset = App.Placement(App.Vector(0, 0, -19), App.Rotation())
sketch3.addGeometry(Part.Circle(App.Vector(0, 7, 0), App.Vector(0, 0, 1), 3.5), False)
sketch3.addConstraint(Sketcher.Constraint("PointOnObject", 0, 3, -2))
sketch3.addConstraint(Sketcher.Constraint("Diameter", 0, Q("7 mm")))
sketch3.addConstraint(Sketcher.Constraint("DistanceY", -1, 1, 0, 3, Q("7 mm")))
pad3 = doc.addObject("PartDesign::Pad", "Pad002")
body3.addObject(pad3)
pad3.Profile = sketch3
pad3.Length = 27.944387
doc.recompute()

body4 = doc.addObject("PartDesign::Body", "Body003")
body4.BaseFeature = body3
boolean = doc.addObject("PartDesign::Boolean", "Boolean")
body.addObject(boolean)
boolean.Type = "Cut"
boolean.addObjects([body4])
doc.recompute()

boolean2 = doc.addObject("PartDesign::Boolean", "Boolean001")
body2.addObject(boolean2)
boolean2.Type = "Cut"
boolean2.addObjects([body3])

sketch4 = doc.addObject("Sketcher::SketchObject", "Sketch003")
body2.addObject(sketch4)
sketch4.AttachmentSupport = (doc.getObject("XZ_Plane001"), [""])
sketch4.MapMode = "FlatFace"
sketch4.AttachmentOffset = App.Placement(App.Vector(0, 0, -19), App.Rotation())
sketch4.addGeometry(Part.LineSegment(App.Vector(-8, 3, 0), App.Vector(-8, 11, 0)), False)
sketch4.addGeometry(Part.LineSegment(App.Vector(-8, 11, 0), App.Vector(-5.5, 11, 0)), False)
sketch4.addGeometry(Part.LineSegment(App.Vector(-5.5, 11, 0), App.Vector(-5.5, 3, 0)), False)
sketch4.addGeometry(Part.LineSegment(App.Vector(-5.5, 3, 0), App.Vector(-8, 3, 0)), False)
sketch4.addGeometry(Part.LineSegment(App.Vector(5.5, 3, 0), App.Vector(5.5, 11, 0)), False)
sketch4.addGeometry(Part.LineSegment(App.Vector(5.5, 11, 0), App.Vector(8, 11, 0)), False)
sketch4.addGeometry(Part.LineSegment(App.Vector(8, 11, 0), App.Vector(8, 3, 0)), False)
sketch4.addGeometry(Part.LineSegment(App.Vector(8, 3, 0), App.Vector(5.5, 3, 0)), False)
sketch4.addConstraint(Sketcher.Constraint("Coincident", 0, 2, 1, 1))
sketch4.addConstraint(Sketcher.Constraint("Coincident", 1, 2, 2, 1))
sketch4.addConstraint(Sketcher.Constraint("Coincident", 2, 2, 3, 1))
sketch4.addConstraint(Sketcher.Constraint("Coincident", 3, 2, 0, 1))
sketch4.addConstraint(Sketcher.Constraint("Coincident", 4, 2, 5, 1))
sketch4.addConstraint(Sketcher.Constraint("Coincident", 5, 2, 6, 1))
sketch4.addConstraint(Sketcher.Constraint("Coincident", 6, 2, 7, 1))
sketch4.addConstraint(Sketcher.Constraint("Coincident", 7, 2, 4, 1))
sketch4.addConstraint(Sketcher.Constraint("Vertical", 0))
sketch4.addConstraint(Sketcher.Constraint("Horizontal", 1))
sketch4.addConstraint(Sketcher.Constraint("Vertical", 2))
sketch4.addConstraint(Sketcher.Constraint("Horizontal", 3))
sketch4.addConstraint(Sketcher.Constraint("Vertical", 4))
sketch4.addConstraint(Sketcher.Constraint("Horizontal", 5))
sketch4.addConstraint(Sketcher.Constraint("Vertical", 6))
sketch4.addConstraint(Sketcher.Constraint("Horizontal", 7))
sketch4.addConstraint(Sketcher.Constraint("Symmetric", 1, 2, 4, 2, -2))
sketch4.addConstraint(Sketcher.Constraint("Symmetric", 3, 2, 6, 2, -2))
sketch4.addConstraint(Sketcher.Constraint("DistanceY", 0, 1, 0, 2, Q("8 mm")))
sketch4.addConstraint(Sketcher.Constraint("DistanceX", 1, 1, 1, 2, Q("2.5 mm")))
sketch4.addConstraint(Sketcher.Constraint("DistanceX", 0, 2, -1, 1, Q("8 mm")))
sketch4.addConstraint(Sketcher.Constraint("DistanceY", -1, 1, 0, 2, Q("11 mm")))
pocket1 = doc.addObject("PartDesign::Pocket", "Pocket")
body2.addObject(pocket1)
pocket1.Profile = sketch4
pocket1.Length = 7
pocket1.Reversed = True
doc.recompute()

fillet = doc.addObject("PartDesign::Fillet", "Fillet")
body2.addObject(fillet)
fillet.Base = (pocket1, edges_at(pocket1, [(-8, 12, 7), (8, 12, 7)]))
fillet.Radius = 1

doc.recompute()
